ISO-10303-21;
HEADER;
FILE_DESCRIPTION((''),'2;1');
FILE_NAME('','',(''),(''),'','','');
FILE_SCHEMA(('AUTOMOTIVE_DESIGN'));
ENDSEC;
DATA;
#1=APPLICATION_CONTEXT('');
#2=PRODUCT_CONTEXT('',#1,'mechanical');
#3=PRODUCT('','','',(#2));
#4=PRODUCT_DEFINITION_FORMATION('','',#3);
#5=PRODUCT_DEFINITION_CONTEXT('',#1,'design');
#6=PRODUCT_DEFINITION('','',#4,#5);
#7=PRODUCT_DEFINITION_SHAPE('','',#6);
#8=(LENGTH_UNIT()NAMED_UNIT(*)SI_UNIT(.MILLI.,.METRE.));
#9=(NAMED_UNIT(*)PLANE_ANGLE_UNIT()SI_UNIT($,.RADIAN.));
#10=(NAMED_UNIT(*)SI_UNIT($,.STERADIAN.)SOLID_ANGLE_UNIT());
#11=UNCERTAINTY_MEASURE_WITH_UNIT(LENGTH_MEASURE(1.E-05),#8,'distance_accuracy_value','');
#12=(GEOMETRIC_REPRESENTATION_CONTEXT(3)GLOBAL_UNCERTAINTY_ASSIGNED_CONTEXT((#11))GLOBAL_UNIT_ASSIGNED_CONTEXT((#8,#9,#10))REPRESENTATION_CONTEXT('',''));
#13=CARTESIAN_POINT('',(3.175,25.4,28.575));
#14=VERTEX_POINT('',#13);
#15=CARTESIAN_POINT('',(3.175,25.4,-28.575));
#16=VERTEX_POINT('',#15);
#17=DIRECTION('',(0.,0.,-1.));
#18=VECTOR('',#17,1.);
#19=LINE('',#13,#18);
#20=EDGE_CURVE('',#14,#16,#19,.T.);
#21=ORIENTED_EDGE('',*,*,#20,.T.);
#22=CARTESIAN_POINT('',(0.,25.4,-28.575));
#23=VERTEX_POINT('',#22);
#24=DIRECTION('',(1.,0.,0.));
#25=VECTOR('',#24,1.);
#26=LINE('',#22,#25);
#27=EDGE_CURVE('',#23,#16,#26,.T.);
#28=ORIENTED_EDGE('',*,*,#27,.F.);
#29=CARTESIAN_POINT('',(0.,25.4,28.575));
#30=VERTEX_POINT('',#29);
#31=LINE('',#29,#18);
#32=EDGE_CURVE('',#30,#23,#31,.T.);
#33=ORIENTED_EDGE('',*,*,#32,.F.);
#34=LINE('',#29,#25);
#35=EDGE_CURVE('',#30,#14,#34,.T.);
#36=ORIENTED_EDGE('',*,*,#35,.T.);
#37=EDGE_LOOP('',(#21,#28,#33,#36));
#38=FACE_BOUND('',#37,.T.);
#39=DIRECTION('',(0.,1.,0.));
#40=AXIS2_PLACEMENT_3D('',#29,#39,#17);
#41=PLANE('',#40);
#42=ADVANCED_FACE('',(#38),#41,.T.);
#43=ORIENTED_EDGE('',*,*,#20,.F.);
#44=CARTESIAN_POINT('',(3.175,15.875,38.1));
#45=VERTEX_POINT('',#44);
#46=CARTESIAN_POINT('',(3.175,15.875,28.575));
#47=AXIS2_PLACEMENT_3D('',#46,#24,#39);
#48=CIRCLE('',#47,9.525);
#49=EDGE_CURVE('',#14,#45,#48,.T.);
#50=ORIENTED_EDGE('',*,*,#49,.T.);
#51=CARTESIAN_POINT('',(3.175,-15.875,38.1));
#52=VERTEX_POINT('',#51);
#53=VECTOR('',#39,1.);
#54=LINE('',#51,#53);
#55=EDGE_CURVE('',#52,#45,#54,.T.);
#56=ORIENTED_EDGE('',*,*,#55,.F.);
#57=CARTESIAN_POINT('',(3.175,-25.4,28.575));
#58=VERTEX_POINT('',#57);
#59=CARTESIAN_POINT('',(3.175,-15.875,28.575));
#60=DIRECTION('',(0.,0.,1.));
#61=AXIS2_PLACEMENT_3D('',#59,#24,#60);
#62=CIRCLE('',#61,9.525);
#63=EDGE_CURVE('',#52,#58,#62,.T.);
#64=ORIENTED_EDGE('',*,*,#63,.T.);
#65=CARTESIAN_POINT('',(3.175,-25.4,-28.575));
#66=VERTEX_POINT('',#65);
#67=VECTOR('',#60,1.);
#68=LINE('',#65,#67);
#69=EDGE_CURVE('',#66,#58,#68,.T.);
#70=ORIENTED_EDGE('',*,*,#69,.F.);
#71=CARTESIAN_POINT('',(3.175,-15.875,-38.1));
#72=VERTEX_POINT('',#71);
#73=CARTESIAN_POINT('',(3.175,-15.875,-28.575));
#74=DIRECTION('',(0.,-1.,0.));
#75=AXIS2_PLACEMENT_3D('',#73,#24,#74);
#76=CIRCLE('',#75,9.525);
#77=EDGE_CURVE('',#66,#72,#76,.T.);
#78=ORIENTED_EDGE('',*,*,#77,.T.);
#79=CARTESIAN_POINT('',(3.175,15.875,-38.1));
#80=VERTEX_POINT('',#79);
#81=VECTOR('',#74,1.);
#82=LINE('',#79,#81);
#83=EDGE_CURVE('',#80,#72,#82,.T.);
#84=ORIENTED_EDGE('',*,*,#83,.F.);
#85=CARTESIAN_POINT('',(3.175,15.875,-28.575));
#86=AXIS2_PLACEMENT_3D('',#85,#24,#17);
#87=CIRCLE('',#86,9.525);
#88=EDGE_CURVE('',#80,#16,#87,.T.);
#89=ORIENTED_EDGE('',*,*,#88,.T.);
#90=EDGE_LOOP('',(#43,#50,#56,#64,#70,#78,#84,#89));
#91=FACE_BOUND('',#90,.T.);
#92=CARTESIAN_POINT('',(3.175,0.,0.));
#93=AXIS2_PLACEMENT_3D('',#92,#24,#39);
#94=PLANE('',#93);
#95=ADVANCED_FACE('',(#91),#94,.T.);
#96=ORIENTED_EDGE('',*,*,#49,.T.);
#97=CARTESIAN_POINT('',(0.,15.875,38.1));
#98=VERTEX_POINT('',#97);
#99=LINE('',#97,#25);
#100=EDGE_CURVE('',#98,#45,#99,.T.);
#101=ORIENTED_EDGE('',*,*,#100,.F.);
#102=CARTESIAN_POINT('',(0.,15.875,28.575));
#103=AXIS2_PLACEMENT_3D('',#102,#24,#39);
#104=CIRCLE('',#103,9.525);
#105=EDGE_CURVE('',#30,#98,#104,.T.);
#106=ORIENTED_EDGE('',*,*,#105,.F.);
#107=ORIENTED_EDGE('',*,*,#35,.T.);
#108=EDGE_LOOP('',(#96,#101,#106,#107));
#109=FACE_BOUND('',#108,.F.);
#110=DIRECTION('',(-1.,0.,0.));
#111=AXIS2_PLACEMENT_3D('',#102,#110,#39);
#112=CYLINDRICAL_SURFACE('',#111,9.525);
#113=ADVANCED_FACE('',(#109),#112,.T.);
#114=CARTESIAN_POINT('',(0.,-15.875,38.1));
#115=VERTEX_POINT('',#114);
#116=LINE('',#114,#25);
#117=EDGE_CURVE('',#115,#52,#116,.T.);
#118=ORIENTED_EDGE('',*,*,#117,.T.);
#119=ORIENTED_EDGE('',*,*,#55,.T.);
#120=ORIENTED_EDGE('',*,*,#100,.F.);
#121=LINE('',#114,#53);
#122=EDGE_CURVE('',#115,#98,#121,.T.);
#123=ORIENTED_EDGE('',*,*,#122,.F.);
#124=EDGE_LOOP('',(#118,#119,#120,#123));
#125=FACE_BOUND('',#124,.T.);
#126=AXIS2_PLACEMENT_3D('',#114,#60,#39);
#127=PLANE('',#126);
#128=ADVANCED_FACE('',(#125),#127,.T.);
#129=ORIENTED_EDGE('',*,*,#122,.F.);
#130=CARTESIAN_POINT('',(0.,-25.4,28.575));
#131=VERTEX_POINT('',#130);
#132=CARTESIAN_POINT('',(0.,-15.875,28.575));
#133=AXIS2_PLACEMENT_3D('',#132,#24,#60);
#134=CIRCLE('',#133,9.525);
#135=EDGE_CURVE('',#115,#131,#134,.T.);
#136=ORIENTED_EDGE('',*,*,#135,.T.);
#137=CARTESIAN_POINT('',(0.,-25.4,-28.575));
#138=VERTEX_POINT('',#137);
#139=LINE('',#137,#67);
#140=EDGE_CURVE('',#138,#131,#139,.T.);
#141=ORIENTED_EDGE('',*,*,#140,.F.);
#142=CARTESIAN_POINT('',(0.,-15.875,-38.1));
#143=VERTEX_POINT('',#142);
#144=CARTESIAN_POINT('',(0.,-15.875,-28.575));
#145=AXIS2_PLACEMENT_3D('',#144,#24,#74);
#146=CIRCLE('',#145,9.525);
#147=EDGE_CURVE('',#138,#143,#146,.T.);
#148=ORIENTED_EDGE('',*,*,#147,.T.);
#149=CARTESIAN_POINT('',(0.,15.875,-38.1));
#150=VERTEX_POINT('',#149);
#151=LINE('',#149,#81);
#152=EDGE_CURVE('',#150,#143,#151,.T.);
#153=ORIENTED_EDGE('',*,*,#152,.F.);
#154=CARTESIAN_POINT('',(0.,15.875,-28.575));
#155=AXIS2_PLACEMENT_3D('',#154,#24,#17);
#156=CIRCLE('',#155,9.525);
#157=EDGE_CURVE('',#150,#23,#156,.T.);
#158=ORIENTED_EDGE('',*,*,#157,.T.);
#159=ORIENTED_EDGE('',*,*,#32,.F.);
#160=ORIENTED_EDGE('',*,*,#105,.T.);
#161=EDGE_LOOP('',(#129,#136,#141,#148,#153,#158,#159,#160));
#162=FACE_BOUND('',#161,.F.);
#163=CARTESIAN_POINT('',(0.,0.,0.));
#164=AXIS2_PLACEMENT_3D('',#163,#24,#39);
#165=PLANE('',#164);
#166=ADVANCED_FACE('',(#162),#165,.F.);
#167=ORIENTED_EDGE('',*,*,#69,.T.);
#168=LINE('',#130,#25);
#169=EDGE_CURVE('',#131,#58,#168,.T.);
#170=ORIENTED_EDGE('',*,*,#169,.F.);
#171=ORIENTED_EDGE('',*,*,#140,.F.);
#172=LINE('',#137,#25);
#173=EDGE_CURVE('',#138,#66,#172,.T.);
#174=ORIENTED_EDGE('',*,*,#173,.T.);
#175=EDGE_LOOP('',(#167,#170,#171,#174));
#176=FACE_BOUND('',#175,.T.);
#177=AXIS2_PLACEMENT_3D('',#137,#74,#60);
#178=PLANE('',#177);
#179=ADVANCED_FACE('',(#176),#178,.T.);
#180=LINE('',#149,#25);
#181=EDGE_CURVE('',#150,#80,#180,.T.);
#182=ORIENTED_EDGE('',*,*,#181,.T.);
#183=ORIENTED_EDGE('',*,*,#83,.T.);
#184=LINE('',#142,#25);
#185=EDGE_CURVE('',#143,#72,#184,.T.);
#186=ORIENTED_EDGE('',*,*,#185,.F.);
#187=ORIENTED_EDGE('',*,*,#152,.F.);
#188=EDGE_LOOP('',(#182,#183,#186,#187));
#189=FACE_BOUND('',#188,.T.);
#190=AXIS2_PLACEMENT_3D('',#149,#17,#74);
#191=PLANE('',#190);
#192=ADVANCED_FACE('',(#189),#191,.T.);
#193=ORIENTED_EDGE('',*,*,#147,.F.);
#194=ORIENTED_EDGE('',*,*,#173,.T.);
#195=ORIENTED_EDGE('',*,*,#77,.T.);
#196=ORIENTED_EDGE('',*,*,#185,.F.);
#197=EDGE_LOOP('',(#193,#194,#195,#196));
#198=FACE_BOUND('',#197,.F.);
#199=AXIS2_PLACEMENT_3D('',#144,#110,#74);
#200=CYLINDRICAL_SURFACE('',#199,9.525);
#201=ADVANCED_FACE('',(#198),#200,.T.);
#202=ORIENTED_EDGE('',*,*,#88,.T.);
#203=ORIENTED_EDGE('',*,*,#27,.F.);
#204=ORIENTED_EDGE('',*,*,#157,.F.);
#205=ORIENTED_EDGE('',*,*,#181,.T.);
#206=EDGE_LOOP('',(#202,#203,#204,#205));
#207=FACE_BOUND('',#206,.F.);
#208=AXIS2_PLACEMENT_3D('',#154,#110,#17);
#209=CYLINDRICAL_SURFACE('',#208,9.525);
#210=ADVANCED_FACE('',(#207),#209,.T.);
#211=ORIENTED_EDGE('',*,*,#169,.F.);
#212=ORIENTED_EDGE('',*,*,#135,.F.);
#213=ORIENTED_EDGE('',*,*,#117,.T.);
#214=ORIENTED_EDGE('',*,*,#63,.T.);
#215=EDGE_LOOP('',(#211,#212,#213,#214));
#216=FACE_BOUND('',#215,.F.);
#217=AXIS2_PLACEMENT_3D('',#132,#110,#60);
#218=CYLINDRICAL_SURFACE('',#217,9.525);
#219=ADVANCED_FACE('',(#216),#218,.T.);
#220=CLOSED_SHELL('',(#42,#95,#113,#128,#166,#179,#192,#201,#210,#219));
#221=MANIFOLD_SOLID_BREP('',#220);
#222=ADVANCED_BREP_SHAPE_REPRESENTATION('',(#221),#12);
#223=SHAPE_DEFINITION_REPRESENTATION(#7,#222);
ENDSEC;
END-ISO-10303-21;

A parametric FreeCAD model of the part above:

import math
import FreeCAD as App
import Part
import Sketcher
from FreeCAD import Vector
Q = App.Units.Quantity

doc = App.newDocument("Part")
body = doc.addObject("PartDesign::Body", "Body")

sketch1 = body.newObject("Sketcher::SketchObject", "Sketch")
sketch1.AttachmentSupport = (doc.getObject("YZ_Plane"), [""])
sketch1.MapMode = "FlatFace"
sketch1.addGeometry([
    Part.LineSegment(Vector(15.875, 38.1, 0), Vector(-15.875, 38.1, 0)),
    Part.ArcOfCircle(Part.Circle(Vector(-15.875, 28.575, 0), Vector(0, 0, 1), 9.525), math.radians(90), math.radians(180)),
    Part.LineSegment(Vector(-25.4, 28.575, 0), Vector(-25.4, -28.575, 0)),
    Part.ArcOfCircle(Part.Circle(Vector(-15.875, -28.575, 0), Vector(0, 0, 1), 9.525), math.radians(180), math.radians(270)),
    Part.LineSegment(Vector(-15.875, -38.1, 0), Vector(15.875, -38.1, 0)),
    Part.ArcOfCircle(Part.Circle(Vector(15.875, -28.575, 0), Vector(0, 0, 1), 9.525), math.radians(-90), math.radians(0)),
    Part.LineSegment(Vector(25.4, -28.575, 0), Vector(25.4, 28.575, 0)),
    Part.ArcOfCircle(Part.Circle(Vector(15.875, 28.575, 0), Vector(0, 0, 1), 9.525), math.radians(0), math.radians(90)),
], False)
sketch1.addConstraint([
    Sketcher.Constraint("Tangent", 0, 2, 1, 1),
    Sketcher.Constraint("Tangent", 1, 2, 2, 1),
    Sketcher.Constraint("Tangent", 2, 2, 3, 1),
    Sketcher.Constraint("Tangent", 3, 2, 4, 1),
    Sketcher.Constraint("Tangent", 4, 2, 5, 1),
    Sketcher.Constraint("Tangent", 5, 2, 6, 1),
    Sketcher.Constraint("Tangent", 6, 2, 7, 1),
    Sketcher.Constraint("Tangent", 7, 2, 0, 1),
    Sketcher.Constraint("Horizontal", 0),
    Sketcher.Constraint("Vertical", 2),
    Sketcher.Constraint("Horizontal", 4),
    Sketcher.Constraint("Vertical", 6),
    Sketcher.Constraint("Equal", 1, 3),
    Sketcher.Constraint("Equal", 3, 5),
    Sketcher.Constraint("Equal", 5, 7),
    Sketcher.Constraint("Symmetric", 1, 3, 5, 3, -1, 1),
    Sketcher.Constraint("Radius", 1, Q("0.375 in")),
    Sketcher.Constraint("DistanceX", 2, 2, 5, 2, Q("2 in")),
    Sketcher.Constraint("DistanceY", 2, 2, 2, 1, Q("2.25 in")),
])
pad1 = body.newObject("PartDesign::Pad", "Pad")
pad1.Profile = sketch1
pad1.Length = Q("0.125 in")

doc.recompute()
